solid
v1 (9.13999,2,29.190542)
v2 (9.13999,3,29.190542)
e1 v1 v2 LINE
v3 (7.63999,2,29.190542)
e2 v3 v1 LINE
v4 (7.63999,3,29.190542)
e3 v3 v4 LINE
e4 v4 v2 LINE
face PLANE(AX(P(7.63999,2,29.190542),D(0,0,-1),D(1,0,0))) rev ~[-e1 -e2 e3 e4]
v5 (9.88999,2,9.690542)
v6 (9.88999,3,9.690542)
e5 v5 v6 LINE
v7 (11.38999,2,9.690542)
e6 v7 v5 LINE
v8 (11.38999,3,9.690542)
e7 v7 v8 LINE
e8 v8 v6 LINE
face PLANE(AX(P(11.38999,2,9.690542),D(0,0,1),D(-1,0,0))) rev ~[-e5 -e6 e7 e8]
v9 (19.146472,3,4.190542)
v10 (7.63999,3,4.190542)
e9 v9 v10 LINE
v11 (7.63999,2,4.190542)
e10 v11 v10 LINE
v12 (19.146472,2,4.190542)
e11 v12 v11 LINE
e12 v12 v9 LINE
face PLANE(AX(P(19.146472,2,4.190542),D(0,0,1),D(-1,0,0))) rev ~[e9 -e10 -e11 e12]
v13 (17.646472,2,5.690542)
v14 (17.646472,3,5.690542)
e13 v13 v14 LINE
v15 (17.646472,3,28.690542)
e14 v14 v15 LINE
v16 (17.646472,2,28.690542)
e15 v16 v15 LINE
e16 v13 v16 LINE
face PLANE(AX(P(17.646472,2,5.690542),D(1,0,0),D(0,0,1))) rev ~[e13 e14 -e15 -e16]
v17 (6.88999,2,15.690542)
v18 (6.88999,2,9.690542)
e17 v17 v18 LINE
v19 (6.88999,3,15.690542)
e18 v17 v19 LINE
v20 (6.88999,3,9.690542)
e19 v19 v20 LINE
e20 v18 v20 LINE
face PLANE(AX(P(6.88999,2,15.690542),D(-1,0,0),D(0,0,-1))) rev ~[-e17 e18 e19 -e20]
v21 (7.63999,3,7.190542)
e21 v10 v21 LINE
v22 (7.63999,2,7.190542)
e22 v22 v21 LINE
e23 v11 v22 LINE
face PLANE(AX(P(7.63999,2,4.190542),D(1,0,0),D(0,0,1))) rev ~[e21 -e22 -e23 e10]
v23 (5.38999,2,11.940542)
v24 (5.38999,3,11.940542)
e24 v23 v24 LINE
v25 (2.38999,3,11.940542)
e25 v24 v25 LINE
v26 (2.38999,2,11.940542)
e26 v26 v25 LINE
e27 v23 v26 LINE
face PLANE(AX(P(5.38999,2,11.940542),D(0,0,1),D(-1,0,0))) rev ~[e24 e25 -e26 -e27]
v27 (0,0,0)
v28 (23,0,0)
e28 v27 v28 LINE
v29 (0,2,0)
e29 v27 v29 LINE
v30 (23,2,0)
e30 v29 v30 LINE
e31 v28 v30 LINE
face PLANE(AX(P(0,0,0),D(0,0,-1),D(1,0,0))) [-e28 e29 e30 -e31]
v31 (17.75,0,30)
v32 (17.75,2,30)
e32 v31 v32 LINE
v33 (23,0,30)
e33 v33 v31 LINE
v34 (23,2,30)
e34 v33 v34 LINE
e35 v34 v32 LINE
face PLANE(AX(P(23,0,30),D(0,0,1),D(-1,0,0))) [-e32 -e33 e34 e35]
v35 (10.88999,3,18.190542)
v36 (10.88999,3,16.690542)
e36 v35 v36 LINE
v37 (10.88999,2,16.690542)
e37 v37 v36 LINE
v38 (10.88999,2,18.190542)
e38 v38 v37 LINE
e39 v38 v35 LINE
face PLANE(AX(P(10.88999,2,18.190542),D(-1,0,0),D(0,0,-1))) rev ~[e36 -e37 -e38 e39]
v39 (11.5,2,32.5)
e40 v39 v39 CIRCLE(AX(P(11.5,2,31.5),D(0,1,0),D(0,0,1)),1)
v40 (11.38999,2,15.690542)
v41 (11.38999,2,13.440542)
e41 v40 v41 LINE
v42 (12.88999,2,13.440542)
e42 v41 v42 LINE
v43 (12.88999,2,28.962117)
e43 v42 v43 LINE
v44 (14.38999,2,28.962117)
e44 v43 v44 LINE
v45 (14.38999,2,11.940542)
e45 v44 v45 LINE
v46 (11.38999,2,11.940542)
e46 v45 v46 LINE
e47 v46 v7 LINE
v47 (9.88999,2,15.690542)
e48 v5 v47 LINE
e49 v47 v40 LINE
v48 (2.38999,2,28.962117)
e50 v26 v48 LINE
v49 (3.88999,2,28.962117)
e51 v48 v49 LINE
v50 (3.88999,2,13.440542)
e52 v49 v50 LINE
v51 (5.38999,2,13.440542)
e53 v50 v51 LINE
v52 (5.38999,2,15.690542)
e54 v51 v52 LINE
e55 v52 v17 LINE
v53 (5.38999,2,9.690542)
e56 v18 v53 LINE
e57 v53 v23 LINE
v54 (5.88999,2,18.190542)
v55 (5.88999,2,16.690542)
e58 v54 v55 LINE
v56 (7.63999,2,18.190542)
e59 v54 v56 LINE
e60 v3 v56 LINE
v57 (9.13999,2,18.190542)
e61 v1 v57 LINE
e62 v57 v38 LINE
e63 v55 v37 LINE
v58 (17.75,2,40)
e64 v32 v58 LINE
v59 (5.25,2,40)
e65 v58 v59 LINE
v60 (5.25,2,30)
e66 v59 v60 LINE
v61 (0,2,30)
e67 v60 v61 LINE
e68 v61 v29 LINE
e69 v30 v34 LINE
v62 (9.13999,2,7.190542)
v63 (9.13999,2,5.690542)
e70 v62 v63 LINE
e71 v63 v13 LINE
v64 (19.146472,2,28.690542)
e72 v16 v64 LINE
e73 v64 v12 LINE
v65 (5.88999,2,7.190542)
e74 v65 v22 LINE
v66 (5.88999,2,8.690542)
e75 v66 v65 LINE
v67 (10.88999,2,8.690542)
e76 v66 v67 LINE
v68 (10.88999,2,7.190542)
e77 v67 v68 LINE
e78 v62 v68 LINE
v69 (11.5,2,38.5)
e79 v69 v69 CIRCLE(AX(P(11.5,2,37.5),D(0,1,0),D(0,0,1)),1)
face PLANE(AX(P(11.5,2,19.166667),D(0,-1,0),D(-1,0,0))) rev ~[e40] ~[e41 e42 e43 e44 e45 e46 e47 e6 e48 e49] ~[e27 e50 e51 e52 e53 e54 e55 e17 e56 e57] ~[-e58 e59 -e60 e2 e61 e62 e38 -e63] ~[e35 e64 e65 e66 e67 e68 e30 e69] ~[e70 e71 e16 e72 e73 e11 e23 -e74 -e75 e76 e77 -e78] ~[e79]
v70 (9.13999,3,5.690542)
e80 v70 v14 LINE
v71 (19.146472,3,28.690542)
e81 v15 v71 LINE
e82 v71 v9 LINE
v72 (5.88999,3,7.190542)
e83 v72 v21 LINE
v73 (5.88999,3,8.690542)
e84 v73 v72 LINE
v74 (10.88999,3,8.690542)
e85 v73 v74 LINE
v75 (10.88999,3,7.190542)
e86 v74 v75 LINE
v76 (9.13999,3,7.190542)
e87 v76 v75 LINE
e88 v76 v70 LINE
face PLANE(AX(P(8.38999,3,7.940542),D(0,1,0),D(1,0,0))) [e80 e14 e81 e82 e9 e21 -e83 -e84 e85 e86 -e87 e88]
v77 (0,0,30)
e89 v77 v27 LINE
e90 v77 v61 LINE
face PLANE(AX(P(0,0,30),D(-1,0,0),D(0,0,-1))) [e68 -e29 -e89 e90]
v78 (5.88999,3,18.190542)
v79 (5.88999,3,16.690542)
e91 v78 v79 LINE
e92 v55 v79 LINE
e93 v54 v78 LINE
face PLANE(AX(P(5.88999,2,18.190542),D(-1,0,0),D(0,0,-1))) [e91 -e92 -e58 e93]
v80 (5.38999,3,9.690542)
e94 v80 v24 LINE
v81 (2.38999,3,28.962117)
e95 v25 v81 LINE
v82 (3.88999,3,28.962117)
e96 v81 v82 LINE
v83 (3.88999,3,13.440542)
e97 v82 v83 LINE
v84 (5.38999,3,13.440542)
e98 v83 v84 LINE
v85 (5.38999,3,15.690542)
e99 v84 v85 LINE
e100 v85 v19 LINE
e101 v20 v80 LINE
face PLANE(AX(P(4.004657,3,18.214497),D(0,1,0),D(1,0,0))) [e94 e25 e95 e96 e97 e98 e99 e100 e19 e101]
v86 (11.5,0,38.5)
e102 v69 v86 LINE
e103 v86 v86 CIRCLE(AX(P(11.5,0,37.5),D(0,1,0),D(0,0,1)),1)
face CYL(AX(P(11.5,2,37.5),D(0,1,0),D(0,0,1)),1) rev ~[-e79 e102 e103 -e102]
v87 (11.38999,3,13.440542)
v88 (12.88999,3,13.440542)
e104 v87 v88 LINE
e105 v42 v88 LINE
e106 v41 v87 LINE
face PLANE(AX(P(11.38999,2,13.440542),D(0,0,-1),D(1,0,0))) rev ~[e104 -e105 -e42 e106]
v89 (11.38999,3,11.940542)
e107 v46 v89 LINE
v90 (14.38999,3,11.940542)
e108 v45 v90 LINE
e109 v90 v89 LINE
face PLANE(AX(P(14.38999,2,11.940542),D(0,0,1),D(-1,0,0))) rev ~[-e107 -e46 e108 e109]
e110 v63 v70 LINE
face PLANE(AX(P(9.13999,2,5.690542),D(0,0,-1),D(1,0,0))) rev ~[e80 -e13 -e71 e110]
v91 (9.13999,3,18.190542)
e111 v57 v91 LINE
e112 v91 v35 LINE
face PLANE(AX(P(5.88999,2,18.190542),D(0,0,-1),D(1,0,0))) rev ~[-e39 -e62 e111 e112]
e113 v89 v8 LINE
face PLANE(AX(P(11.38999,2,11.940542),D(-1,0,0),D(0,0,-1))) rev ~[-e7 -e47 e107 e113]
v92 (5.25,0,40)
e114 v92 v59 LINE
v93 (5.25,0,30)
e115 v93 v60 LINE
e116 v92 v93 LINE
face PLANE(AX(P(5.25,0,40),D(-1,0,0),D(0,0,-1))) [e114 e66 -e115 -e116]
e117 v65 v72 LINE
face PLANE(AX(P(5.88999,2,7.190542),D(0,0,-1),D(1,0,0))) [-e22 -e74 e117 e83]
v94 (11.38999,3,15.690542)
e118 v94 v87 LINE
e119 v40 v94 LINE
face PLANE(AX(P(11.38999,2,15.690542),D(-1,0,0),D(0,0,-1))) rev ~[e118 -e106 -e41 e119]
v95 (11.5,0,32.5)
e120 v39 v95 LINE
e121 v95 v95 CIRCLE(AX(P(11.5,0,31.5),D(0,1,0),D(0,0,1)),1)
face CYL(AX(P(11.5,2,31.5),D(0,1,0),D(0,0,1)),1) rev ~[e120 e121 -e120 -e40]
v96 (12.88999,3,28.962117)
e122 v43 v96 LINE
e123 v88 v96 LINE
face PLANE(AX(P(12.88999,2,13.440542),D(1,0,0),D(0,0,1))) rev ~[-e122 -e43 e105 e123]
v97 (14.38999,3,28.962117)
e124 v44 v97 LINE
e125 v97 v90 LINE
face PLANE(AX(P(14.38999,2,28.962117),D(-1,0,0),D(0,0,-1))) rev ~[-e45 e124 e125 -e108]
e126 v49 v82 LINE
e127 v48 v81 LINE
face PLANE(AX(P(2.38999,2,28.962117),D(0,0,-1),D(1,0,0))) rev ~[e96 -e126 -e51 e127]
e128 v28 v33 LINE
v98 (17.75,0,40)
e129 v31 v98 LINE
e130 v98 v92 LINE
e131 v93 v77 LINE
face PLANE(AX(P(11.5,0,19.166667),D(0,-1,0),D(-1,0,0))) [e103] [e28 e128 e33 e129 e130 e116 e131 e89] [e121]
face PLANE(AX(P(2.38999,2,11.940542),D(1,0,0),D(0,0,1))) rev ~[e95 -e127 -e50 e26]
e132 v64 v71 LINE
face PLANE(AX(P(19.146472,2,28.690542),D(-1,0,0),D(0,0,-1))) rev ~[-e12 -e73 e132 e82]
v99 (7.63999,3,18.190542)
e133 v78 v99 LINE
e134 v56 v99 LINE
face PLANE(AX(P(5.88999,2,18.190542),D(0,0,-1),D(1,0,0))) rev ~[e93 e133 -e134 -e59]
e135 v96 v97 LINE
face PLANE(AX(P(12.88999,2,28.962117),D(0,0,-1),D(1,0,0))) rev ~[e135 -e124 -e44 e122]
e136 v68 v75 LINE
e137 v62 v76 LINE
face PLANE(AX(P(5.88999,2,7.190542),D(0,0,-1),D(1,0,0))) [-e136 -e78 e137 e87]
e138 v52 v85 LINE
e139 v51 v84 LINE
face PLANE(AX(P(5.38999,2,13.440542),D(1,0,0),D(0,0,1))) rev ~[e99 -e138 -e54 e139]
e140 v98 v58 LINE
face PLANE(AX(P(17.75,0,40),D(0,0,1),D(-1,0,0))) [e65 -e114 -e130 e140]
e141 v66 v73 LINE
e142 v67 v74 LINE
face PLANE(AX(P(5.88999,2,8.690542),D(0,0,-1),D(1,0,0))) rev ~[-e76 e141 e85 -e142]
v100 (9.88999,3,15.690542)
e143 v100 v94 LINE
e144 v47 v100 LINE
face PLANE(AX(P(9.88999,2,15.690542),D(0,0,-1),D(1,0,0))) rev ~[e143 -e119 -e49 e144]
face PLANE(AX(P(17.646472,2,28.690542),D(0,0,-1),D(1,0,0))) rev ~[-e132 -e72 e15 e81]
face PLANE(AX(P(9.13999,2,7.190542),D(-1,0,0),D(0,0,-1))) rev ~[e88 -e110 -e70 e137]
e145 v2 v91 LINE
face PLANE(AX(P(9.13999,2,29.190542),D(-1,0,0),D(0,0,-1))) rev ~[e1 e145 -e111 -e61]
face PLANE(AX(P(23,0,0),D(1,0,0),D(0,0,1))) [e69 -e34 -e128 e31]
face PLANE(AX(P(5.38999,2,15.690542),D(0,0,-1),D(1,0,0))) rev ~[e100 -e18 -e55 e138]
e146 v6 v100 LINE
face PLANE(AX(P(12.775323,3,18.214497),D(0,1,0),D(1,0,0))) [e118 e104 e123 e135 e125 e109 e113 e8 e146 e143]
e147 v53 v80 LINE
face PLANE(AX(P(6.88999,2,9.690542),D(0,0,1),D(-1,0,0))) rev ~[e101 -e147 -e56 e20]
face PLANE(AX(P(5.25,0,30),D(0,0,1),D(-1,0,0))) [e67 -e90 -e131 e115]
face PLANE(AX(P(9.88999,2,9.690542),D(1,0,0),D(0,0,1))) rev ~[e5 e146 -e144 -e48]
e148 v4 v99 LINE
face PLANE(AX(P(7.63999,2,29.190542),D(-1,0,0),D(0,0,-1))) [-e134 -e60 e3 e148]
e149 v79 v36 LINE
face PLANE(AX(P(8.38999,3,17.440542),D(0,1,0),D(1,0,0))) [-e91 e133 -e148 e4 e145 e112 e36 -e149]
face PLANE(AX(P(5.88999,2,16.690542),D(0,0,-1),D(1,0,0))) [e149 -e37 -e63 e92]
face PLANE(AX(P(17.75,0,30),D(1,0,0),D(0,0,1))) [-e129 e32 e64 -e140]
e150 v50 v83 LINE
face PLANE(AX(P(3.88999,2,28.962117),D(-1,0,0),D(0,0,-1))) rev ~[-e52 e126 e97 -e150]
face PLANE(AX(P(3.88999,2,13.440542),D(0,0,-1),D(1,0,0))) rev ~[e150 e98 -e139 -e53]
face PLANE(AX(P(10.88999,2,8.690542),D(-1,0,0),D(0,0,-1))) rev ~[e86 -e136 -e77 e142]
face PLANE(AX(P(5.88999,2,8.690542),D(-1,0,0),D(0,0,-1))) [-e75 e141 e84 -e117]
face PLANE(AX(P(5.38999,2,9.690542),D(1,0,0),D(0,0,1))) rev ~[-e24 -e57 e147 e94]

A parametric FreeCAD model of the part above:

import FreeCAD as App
import Part
import Sketcher
from FreeCAD import Vector
Q = App.Units.Quantity


def add_polygon(sketch, points):
    """Adds a closed chain of lines whose ends are joined by coincident constraints."""
    first, n = sketch.GeometryCount, len(points)
    for a, b in zip(points, points[1:] + points[:1]):
        sketch.addGeometry(Part.LineSegment(App.Vector(*a, 0), App.Vector(*b, 0)), False)
    for i in range(n):
        sketch.addConstraint(Sketcher.Constraint("Coincident", first + i, 2, first + (i + 1) % n, 1))

doc = App.newDocument("Part")
body = doc.addObject("PartDesign::Body", "Body")

# Sketch on XZ plane
sketch1 = doc.addObject("Sketcher::SketchObject", "Sketch")
body.addObject(sketch1)
sketch1.AttachmentSupport = (doc.XZ_Plane, [""])
sketch1.MapMode = "FlatFace"
add_polygon(sketch1, [(5, 30), (5, 40), (18, 40), (18, 30), (23, 30), (23, 0), (0, 0), (0, 30)])  # lines 0-7
sketch1.addConstraint([
    Sketcher.Constraint("Vertical", 0),
    Sketcher.Constraint("Horizontal", 1),
    Sketcher.Constraint("Vertical", 2),
    Sketcher.Constraint("Horizontal", 3),
    Sketcher.Constraint("Vertical", 4),
    Sketcher.Constraint("Horizontal", 5),
    Sketcher.Constraint("Vertical", 6),
    Sketcher.Constraint("Horizontal", 7),
    Sketcher.Constraint("Coincident", 5, 2, -1, 1),
    Sketcher.Constraint("Horizontal", 3, 2, 6, 2),
    Sketcher.Constraint("Equal", 3, 7),
    Sketcher.Constraint("DistanceX", 5, 2, 5, 1, Q("23 mm")),
    Sketcher.Constraint("DistanceY", 0, 1, 0, 2, Q("10 mm")),
    Sketcher.Constraint("DistanceY", 4, 2, 4, 1, Q("30 mm")),
    Sketcher.Constraint("DistanceX", 1, 1, 1, 2, Q("12.5 mm")),
])
pad1 = doc.addObject("PartDesign::Pad", "Pad")
body.addObject(pad1)
pad1.Profile = sketch1
pad1.Length = 2
pad1.Reversed = True

# Sketch on XZ plane
sketch2 = doc.addObject("Sketcher::SketchObject", "Sketch001")
body.addObject(sketch2)
sketch2.AttachmentSupport = (doc.XZ_Plane, [""])
sketch2.MapMode = "FlatFace"
sketch2.AttachmentOffset = App.Placement(Vector(0, 0, -2), App.Rotation())
add_polygon(sketch2, [(3.9, 13.4), (5.4, 13.4), (5.4, 15.7), (6.9, 15.7), (6.9, 9.7), (5.4, 9.7), (5.4, 11.9), (2.4, 11.9), (2.4, 29), (3.9, 29)])  # lines 0-9
add_polygon(sketch2, [(5.9, 7.2), (5.9, 8.7), (10.9, 8.7), (10.9, 7.2)])  # lines 10-13
add_polygon(sketch2, [(5.9, 16.7), (5.9, 18.2), (10.9, 18.2), (10.9, 16.7)])  # lines 14-17
add_polygon(sketch2, [(11.4, 9.7), (9.9, 9.7), (9.9, 15.7), (11.4, 15.7), (11.4, 13.4), (12.9, 13.4), (12.9, 29), (14.4, 29), (14.4, 11.9), (11.4, 11.9)])  # lines 18-27
sketch2.addConstraint([
    Sketcher.Constraint("Horizontal", 0),
    Sketcher.Constraint("Vertical", 1),
    Sketcher.Constraint("Horizontal", 2),
    Sketcher.Constraint("Vertical", 3),
    Sketcher.Constraint("Horizontal", 4),
    Sketcher.Constraint("Vertical", 5),
    Sketcher.Constraint("Horizontal", 6),
    Sketcher.Constraint("Vertical", 7),
    Sketcher.Constraint("Horizontal", 8),
    Sketcher.Constraint("Vertical", 9),
    Sketcher.Constraint("Vertical", 10),
    Sketcher.Constraint("Horizontal", 11),
    Sketcher.Constraint("Vertical", 12),
    Sketcher.Constraint("Horizontal", 13),
    Sketcher.Constraint("Vertical", 14),
    Sketcher.Constraint("Horizontal", 15),
    Sketcher.Constraint("Vertical", 16),
    Sketcher.Constraint("Horizontal", 17),
    Sketcher.Constraint("Horizontal", 18),
    Sketcher.Constraint("Vertical", 19),
    Sketcher.Constraint("Horizontal", 20),
    Sketcher.Constraint("Vertical", 21),
    Sketcher.Constraint("Horizontal", 22),
    Sketcher.Constraint("Vertical", 23),
    Sketcher.Constraint("Horizontal", 24),
    Sketcher.Constraint("Vertical", 25),
    Sketcher.Constraint("Horizontal", 26),
    Sketcher.Constraint("Vertical", 27),
    Sketcher.Constraint("Horizontal", 4, 2, 18, 2),
    Sketcher.Constraint("Horizontal", 2, 2, 19, 2),
    Sketcher.Constraint("Horizontal", 9, 2, 21, 2),
    Sketcher.Constraint("Horizontal", 8, 2, 23, 2),
    Sketcher.Constraint("Horizontal", 6, 2, 25, 2),
    Sketcher.Constraint("Vertical", 1, 2, 4, 2),
    Sketcher.Constraint("Vertical", 13, 2, 14, 2),
    Sketcher.Constraint("Vertical", 12, 2, 15, 2),
    Sketcher.Constraint("Vertical", 21, 2, 26, 2),
    Sketcher.Constraint("Equal", 0, 2),
    Sketcher.Constraint("Equal", 4, 8),
    Sketcher.Constraint("Equal", 8, 18),
    Sketcher.Constraint("Equal", 20, 22),
    Sketcher.Constraint("Equal", 22, 24),
    Sketcher.Constraint("Equal", 1, 5),
    Sketcher.Constraint("Equal", 24, 10),
    Sketcher.Constraint("Equal", 12, 14),
    Sketcher.Constraint("DistanceX", 6, 2, 6, 1, Q("3 mm")),
    Sketcher.Constraint("DistanceX", 11, 1, 11, 2, Q("5 mm")),
    Sketcher.Constraint("DistanceY", 3, 2, 3, 1, Q("6 mm")),
    Sketcher.Constraint("DistanceY", 10, 2, 4, 2, Q("1 mm")),
    Sketcher.Constraint("DistanceX", 10, 2, 3, 2, Q("1 mm")),
    Sketcher.Constraint("DistanceY", 2, 2, 16, 2, Q("1 mm")),
    Sketcher.Constraint("DistanceX", 18, 2, 11, 2, Q("1 mm")),
    Sketcher.Constraint("DistanceY", 1, 1, 1, 2, Q("2.25 mm")),
    Sketcher.Constraint("DistanceY", 7, 1, 7, 2, Q("17.021574 mm")),
    Sketcher.Constraint("DistanceX", -1, 1, 0, 2, Q("5.38999 mm")),
    Sketcher.Constraint("DistanceY", -1, 1, 0, 2, Q("13.440542 mm")),
])
pad2 = doc.addObject("PartDesign::Pad", "Pad001")
body.addObject(pad2)
pad2.Profile = sketch2
pad2.Length = 1
pad2.Reversed = True

# Sketch on XZ plane
sketch3 = doc.addObject("Sketcher::SketchObject", "Sketch002")
body.addObject(sketch3)
sketch3.AttachmentSupport = (doc.XZ_Plane, [""])
sketch3.MapMode = "FlatFace"
sketch3.AttachmentOffset = App.Placement(Vector(0, 0, -2), App.Rotation())
add_polygon(sketch3, [(7.6, 18.2), (7.6, 29.2), (9.1, 29.2), (9.1, 18.2)])  # lines 0-3
add_polygon(sketch3, [(7.6, 4.2), (7.6, 7.2), (9.1, 7.2), (9.1, 5.7), (17.6, 5.7), (17.6, 28.7), (19.1, 28.7), (19.1, 4.2)])  # lines 4-11
sketch3.addConstraint([
    Sketcher.Constraint("Vertical", 0),
    Sketcher.Constraint("Horizontal", 1),
    Sketcher.Constraint("Vertical", 2),
    Sketcher.Constraint("Horizontal", 3),
    Sketcher.Constraint("Vertical", 4),
    Sketcher.Constraint("Horizontal", 5),
    Sketcher.Constraint("Vertical", 6),
    Sketcher.Constraint("Horizontal", 7),
    Sketcher.Constraint("Vertical", 8),
    Sketcher.Constraint("Horizontal", 9),
    Sketcher.Constraint("Vertical", 10),
    Sketcher.Constraint("Horizontal", 11),
    Sketcher.Constraint("Vertical", 3, 2, 4, 2),
    Sketcher.Constraint("Vertical", 2, 2, 5, 2),
    Sketcher.Constraint("Equal", 5, 9),
    Sketcher.Constraint("Equal", 9, 6),
    Sketcher.Constraint("DistanceY", 0, 1, 0, 2, Q("11 mm")),
    Sketcher.Constraint("DistanceY", 4, 1, 4, 2, Q("3 mm")),
    Sketcher.Constraint("DistanceY", 8, 1, 8, 2, Q("23 mm")),
    Sketcher.Constraint("DistanceX", 1, 1, 1, 2, Q("1.5 mm")),
    Sketcher.Constraint("DistanceY", 4, 2, 3, 2, Q("11 mm")),
    Sketcher.Constraint("DistanceX", 7, 1, 7, 2, Q("8.506481 mm")),
    Sketcher.Constraint("DistanceX", -1, 1, 0, 2, Q("7.63999 mm")),
    Sketcher.Constraint("DistanceY", -1, 1, 0, 2, Q("29.190542 mm")),
])
pad3 = doc.addObject("PartDesign::Pad", "Pad002")
body.addObject(pad3)
pad3.Profile = sketch3
pad3.Length = 1
pad3.Reversed = True

# Sketch on XZ plane
sketch4 = doc.addObject("Sketcher::SketchObject", "Sketch003")
body.addObject(sketch4)
sketch4.AttachmentSupport = (doc.XZ_Plane, [""])
sketch4.MapMode = "FlatFace"
sketch4.AttachmentOffset = App.Placement(Vector(0, 0, -2), App.Rotation())
sketch4.addGeometry(Part.Circle(Vector(11.5, 37.5, 0), Vector(0, 0, 1), 1), False)
sketch4.addConstraint([
    Sketcher.Constraint("Diameter", 0, Q("2 mm")),
    Sketcher.Constraint("DistanceX", -1, 1, 0, 3, Q("11.5 mm")),
    Sketcher.Constraint("DistanceY", -1, 1, 0, 3, Q("37.5 mm")),
])
pocket1 = doc.addObject("PartDesign::Pocket", "Pocket")
body.addObject(pocket1)
pocket1.Profile = sketch4
pocket1.Type = "ThroughAll"
pocket1.Reversed = True
doc.recompute()

linearpattern = doc.addObject("PartDesign::LinearPattern", "LinearPattern")
body.addObject(linearpattern)
linearpattern.Originals = [pocket1]
linearpattern.Direction = (doc.Z_Axis, [""])
linearpattern.Mode = "offset"
linearpattern.Offset = 6
linearpattern.Occurrences = 2
linearpattern.Reversed = True
body.Tip = linearpattern

doc.recompute()
